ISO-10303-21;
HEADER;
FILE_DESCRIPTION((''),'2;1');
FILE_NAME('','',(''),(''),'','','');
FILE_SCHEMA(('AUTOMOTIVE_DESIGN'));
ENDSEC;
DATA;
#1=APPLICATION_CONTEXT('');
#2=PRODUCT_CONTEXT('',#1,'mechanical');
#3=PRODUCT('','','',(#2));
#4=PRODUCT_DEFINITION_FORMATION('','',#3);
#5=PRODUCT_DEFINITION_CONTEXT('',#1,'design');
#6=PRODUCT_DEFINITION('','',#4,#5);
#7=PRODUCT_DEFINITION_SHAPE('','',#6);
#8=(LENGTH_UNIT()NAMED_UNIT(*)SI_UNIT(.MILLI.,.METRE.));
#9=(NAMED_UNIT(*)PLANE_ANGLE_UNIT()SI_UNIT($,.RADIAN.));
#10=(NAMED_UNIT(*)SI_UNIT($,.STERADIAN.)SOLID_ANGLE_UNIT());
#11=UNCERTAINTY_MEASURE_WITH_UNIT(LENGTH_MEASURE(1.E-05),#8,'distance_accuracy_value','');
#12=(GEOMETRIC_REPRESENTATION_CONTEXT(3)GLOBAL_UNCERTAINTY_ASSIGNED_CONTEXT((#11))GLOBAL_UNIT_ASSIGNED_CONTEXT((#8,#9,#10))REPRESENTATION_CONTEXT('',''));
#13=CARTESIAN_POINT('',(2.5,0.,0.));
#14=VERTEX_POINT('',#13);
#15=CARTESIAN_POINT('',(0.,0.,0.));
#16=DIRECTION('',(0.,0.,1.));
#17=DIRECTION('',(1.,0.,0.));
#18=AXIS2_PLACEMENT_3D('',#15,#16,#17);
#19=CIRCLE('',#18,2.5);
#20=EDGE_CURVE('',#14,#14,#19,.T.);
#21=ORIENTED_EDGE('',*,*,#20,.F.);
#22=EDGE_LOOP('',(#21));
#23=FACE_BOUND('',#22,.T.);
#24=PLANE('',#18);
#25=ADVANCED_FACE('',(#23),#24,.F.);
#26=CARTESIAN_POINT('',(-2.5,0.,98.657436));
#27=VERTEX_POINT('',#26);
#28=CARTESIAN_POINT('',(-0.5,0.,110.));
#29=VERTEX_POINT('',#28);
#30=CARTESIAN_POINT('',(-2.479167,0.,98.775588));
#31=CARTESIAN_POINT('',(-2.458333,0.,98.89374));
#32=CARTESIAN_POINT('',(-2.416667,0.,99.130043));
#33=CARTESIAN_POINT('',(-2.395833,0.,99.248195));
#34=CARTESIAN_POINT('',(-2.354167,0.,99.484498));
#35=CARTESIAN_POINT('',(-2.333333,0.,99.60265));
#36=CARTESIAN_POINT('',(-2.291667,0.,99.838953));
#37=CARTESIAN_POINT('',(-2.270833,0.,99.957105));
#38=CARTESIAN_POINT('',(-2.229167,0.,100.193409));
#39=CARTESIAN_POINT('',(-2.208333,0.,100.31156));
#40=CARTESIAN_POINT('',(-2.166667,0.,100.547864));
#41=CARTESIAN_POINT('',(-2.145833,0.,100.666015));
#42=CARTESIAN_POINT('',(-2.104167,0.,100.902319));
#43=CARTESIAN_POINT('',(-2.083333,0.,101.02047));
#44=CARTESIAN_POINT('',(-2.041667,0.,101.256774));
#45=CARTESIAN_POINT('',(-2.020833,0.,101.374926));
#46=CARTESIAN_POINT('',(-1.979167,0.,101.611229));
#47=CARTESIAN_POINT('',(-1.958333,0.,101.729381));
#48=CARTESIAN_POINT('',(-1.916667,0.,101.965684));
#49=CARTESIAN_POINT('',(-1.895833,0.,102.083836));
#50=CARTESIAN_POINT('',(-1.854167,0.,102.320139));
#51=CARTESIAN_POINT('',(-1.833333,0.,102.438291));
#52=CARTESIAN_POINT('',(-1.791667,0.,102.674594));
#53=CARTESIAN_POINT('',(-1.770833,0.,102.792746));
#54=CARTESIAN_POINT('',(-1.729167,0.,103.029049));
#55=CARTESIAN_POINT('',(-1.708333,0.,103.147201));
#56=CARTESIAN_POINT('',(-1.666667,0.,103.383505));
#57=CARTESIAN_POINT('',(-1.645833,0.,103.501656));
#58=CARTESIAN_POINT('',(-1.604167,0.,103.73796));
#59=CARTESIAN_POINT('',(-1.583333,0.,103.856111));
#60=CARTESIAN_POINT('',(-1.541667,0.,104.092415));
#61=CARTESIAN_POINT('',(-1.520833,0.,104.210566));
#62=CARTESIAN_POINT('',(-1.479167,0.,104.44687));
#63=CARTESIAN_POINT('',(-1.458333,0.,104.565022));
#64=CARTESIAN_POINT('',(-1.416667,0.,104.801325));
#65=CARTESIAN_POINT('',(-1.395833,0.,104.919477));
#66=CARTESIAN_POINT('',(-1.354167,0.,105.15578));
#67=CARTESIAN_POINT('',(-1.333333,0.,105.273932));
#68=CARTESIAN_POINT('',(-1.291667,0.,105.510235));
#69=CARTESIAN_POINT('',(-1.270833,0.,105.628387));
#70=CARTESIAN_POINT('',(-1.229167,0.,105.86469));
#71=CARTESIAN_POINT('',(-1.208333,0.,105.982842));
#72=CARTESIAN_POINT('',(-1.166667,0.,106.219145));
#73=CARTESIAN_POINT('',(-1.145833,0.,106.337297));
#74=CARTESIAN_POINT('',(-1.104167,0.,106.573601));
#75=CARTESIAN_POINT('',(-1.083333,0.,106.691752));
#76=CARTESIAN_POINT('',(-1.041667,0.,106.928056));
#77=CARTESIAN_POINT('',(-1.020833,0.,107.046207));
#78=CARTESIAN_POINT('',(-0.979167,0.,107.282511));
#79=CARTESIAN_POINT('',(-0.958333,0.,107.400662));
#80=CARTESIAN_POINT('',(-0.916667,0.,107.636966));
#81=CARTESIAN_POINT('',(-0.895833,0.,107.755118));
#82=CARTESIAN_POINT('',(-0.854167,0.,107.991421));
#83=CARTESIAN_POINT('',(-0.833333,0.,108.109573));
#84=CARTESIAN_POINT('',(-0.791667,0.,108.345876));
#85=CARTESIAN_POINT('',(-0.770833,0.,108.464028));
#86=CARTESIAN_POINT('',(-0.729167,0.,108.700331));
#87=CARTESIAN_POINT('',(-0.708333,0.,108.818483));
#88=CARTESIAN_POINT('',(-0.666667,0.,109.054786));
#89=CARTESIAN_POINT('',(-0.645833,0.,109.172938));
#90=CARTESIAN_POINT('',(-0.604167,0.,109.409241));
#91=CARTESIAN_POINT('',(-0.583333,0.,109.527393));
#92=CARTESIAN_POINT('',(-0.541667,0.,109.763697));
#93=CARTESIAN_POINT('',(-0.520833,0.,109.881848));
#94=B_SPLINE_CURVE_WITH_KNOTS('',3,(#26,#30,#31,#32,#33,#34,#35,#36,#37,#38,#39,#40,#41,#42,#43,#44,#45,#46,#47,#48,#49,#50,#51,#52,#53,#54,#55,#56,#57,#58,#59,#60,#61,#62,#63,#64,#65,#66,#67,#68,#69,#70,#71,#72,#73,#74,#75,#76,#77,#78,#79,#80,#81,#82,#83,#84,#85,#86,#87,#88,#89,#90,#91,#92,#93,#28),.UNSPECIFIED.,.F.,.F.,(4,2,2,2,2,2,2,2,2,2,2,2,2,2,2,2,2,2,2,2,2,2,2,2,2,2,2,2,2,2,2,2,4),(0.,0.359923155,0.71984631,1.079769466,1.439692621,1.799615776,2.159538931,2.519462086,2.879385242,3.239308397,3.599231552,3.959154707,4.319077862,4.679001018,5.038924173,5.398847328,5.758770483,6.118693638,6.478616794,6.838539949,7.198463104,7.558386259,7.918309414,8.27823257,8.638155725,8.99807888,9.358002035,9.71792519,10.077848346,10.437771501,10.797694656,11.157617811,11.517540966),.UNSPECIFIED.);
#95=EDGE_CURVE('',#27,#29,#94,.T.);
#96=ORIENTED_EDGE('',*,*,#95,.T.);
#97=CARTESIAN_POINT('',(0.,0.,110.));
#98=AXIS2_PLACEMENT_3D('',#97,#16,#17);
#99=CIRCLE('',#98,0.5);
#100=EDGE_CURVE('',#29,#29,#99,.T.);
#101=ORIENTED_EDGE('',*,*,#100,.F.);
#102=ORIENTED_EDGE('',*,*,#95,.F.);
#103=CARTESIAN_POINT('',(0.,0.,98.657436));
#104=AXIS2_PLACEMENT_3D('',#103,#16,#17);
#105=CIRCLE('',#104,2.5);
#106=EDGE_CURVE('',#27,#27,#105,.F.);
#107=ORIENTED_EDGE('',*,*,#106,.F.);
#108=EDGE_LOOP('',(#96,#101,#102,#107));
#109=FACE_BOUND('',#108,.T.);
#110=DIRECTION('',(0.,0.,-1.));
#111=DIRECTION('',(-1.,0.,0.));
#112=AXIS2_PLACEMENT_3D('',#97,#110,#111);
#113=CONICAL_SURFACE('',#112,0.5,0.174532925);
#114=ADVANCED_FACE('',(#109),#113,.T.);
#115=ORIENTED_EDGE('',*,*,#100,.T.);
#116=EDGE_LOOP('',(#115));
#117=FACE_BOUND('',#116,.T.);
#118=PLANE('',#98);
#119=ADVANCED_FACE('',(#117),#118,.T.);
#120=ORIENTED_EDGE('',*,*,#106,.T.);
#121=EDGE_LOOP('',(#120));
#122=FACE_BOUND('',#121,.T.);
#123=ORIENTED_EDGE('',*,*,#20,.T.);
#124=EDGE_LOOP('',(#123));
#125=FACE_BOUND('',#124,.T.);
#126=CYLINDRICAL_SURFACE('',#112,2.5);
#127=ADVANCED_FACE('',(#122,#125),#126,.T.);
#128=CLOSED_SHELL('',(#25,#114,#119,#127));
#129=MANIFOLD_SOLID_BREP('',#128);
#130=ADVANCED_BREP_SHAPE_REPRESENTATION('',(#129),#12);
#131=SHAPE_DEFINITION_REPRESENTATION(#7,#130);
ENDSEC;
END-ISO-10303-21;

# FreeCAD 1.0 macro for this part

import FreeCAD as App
import Part
import Sketcher
from FreeCAD import Vector
Q = App.Units.Quantity


def edges_at(feature, points):
    """Names of the edges that pass closest to the given points."""
    edges = feature.Shape.Edges
    near = lambda p: min(range(len(edges)), key=lambda i: edges[i].distToShape(Part.Vertex(*p))[0])
    return sorted({f"Edge{near(p) + 1}" for p in points})

doc = App.newDocument("Part")
params = doc.addObject("Spreadsheet::Sheet", "Params")
for row, (alias, value) in enumerate([
    ("sketch1_diameter", "5 mm"),
    ("pad1_length", "110 mm"),
    ("chamfer_size", "2 mm"),
    ("chamfer_size2", "11.342564 mm"),
], start=1):
    params.set(f"A{row}", alias)
    params.set(f"B{row}", "=" + value)
    params.setAlias(f"B{row}", alias)

body = doc.addObject("PartDesign::Body", "Body")

# Sketch on XY plane
sketch1 = doc.addObject("Sketcher::SketchObject", "Sketch")
body.addObject(sketch1)
sketch1.AttachmentSupport = (doc.XY_Plane, [""])
sketch1.MapMode = "FlatFace"
sketch1.addGeometry(Part.Circle(Vector(0, 0, 0), Vector(0, 0, 1), 2.5), False)
sketch1.addConstraint([
    Sketcher.Constraint("Coincident", 0, 3, -1, 1),
    Sketcher.Constraint("Diameter", 0, Q("5 mm")),
])
sketch1.setExpression("Constraints[1]", "Params.sketch1_diameter")
pad1 = doc.addObject("PartDesign::Pad", "Pad")
body.addObject(pad1)
pad1.Profile = sketch1
pad1.setExpression("Length", "Params.pad1_length")
doc.recompute()

chamfer = doc.addObject("PartDesign::Chamfer", "Chamfer")
body.addObject(chamfer)
chamfer.Base = (pad1, edges_at(pad1, [(-2.5, 0, 110)]))
chamfer.ChamferType = "Two distances"
chamfer.setExpression("Size", "Params.chamfer_size")
chamfer.setExpression("Size2", "Params.chamfer_size2")
chamfer.FlipDirection = True

doc.recompute()
